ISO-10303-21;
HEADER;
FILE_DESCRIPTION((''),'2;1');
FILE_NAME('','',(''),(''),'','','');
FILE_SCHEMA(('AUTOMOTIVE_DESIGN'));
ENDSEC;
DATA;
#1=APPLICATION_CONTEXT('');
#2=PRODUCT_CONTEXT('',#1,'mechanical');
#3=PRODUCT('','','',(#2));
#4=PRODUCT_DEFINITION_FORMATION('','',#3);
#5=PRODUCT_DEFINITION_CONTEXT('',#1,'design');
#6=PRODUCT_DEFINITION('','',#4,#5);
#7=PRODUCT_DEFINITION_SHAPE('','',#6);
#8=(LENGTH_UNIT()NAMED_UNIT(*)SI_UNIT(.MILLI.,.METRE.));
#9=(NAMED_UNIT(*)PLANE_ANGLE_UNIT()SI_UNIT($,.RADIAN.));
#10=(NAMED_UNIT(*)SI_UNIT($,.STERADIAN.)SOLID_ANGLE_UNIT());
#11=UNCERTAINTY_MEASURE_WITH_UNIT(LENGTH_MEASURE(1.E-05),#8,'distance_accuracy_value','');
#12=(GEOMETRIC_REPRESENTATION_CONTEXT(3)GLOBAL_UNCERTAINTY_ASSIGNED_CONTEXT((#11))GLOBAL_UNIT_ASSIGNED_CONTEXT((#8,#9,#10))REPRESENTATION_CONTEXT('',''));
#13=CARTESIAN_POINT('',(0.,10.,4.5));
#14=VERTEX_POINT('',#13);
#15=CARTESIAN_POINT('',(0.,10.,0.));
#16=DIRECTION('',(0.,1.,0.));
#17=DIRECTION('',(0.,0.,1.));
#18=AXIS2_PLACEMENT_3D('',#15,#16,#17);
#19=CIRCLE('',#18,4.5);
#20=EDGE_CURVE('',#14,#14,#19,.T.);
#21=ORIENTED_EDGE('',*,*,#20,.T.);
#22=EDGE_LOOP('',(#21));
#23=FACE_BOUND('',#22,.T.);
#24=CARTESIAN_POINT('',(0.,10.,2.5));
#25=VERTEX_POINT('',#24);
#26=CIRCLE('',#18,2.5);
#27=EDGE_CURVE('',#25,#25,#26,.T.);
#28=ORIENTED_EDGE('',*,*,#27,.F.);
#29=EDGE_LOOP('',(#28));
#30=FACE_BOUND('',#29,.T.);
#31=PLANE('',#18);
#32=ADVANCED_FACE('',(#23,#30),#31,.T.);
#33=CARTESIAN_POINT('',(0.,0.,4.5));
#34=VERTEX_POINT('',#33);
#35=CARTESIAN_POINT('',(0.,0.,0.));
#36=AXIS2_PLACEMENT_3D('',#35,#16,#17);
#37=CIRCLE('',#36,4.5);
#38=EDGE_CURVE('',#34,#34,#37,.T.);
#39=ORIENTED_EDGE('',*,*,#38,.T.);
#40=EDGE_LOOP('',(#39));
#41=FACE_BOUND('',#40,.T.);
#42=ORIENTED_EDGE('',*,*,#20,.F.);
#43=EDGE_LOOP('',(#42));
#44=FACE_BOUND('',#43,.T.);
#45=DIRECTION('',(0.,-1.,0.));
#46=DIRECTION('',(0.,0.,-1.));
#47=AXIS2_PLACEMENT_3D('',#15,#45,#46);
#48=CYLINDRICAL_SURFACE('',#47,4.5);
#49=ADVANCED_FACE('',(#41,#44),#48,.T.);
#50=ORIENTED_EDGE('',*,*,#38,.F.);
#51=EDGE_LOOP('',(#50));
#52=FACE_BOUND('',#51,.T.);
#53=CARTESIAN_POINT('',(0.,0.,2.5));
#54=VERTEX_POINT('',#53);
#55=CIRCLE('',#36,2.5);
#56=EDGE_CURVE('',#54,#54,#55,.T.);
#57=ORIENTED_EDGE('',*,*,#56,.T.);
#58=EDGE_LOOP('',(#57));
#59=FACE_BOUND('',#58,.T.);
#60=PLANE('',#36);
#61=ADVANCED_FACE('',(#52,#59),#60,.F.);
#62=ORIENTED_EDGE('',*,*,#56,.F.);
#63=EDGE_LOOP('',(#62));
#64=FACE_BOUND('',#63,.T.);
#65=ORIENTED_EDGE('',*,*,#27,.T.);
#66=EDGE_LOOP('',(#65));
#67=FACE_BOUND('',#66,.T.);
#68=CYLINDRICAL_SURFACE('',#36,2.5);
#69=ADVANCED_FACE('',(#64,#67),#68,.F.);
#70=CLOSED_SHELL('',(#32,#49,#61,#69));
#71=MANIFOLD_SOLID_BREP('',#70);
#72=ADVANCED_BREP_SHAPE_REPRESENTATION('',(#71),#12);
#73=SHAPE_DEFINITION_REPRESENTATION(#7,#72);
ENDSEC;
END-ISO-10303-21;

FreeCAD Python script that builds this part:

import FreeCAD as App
import Part
import Sketcher

doc = App.newDocument("Part")
body = doc.addObject("PartDesign::Body", "Body")

# Sketch on XZ plane
sketch1 = doc.addObject("Sketcher::SketchObject", "Sketch")
body.addObject(sketch1)
sketch1.AttachmentSupport = (doc.XZ_Plane, [""])
sketch1.MapMode = "FlatFace"
sketch1.addGeometry(Part.Circle(App.Vector(0, 0, 0), App.Vector(0, 0, 1), 4.5), False)
sketch1.addConstraint([
    Sketcher.Constraint("Coincident", 0, 3, -1, 1),
    Sketcher.Constraint("Diameter", 0, 9.0),
])
pad1 = doc.addObject("PartDesign::Pad", "Pad")
body.addObject(pad1)
pad1.Profile = sketch1
pad1.Length = 10
pad1.Reversed = True

# Sketch on XZ plane
sketch2 = doc.addObject("Sketcher::SketchObject", "Sketch001")
body.addObject(sketch2)
sketch2.AttachmentSupport = (doc.XZ_Plane, [""])
sketch2.MapMode = "FlatFace"
sketch2.AttachmentOffset = App.Placement(App.Vector(0, 0, -10), App.Rotation())
sketch2.addGeometry(Part.Circle(App.Vector(0, 0, 0), App.Vector(0, 0, 1), 2.5), False)
sketch2.addConstraint([
    Sketcher.Constraint("Coincident", 0, 3, -1, 1),
    Sketcher.Constraint("Diameter", 0, 5.0),
])
pocket1 = doc.addObject("PartDesign::Pocket", "Pocket")
body.addObject(pocket1)
pocket1.Profile = sketch2
pocket1.Type = "ThroughAll"
pocket1.Reversed = True

doc.recompute()
